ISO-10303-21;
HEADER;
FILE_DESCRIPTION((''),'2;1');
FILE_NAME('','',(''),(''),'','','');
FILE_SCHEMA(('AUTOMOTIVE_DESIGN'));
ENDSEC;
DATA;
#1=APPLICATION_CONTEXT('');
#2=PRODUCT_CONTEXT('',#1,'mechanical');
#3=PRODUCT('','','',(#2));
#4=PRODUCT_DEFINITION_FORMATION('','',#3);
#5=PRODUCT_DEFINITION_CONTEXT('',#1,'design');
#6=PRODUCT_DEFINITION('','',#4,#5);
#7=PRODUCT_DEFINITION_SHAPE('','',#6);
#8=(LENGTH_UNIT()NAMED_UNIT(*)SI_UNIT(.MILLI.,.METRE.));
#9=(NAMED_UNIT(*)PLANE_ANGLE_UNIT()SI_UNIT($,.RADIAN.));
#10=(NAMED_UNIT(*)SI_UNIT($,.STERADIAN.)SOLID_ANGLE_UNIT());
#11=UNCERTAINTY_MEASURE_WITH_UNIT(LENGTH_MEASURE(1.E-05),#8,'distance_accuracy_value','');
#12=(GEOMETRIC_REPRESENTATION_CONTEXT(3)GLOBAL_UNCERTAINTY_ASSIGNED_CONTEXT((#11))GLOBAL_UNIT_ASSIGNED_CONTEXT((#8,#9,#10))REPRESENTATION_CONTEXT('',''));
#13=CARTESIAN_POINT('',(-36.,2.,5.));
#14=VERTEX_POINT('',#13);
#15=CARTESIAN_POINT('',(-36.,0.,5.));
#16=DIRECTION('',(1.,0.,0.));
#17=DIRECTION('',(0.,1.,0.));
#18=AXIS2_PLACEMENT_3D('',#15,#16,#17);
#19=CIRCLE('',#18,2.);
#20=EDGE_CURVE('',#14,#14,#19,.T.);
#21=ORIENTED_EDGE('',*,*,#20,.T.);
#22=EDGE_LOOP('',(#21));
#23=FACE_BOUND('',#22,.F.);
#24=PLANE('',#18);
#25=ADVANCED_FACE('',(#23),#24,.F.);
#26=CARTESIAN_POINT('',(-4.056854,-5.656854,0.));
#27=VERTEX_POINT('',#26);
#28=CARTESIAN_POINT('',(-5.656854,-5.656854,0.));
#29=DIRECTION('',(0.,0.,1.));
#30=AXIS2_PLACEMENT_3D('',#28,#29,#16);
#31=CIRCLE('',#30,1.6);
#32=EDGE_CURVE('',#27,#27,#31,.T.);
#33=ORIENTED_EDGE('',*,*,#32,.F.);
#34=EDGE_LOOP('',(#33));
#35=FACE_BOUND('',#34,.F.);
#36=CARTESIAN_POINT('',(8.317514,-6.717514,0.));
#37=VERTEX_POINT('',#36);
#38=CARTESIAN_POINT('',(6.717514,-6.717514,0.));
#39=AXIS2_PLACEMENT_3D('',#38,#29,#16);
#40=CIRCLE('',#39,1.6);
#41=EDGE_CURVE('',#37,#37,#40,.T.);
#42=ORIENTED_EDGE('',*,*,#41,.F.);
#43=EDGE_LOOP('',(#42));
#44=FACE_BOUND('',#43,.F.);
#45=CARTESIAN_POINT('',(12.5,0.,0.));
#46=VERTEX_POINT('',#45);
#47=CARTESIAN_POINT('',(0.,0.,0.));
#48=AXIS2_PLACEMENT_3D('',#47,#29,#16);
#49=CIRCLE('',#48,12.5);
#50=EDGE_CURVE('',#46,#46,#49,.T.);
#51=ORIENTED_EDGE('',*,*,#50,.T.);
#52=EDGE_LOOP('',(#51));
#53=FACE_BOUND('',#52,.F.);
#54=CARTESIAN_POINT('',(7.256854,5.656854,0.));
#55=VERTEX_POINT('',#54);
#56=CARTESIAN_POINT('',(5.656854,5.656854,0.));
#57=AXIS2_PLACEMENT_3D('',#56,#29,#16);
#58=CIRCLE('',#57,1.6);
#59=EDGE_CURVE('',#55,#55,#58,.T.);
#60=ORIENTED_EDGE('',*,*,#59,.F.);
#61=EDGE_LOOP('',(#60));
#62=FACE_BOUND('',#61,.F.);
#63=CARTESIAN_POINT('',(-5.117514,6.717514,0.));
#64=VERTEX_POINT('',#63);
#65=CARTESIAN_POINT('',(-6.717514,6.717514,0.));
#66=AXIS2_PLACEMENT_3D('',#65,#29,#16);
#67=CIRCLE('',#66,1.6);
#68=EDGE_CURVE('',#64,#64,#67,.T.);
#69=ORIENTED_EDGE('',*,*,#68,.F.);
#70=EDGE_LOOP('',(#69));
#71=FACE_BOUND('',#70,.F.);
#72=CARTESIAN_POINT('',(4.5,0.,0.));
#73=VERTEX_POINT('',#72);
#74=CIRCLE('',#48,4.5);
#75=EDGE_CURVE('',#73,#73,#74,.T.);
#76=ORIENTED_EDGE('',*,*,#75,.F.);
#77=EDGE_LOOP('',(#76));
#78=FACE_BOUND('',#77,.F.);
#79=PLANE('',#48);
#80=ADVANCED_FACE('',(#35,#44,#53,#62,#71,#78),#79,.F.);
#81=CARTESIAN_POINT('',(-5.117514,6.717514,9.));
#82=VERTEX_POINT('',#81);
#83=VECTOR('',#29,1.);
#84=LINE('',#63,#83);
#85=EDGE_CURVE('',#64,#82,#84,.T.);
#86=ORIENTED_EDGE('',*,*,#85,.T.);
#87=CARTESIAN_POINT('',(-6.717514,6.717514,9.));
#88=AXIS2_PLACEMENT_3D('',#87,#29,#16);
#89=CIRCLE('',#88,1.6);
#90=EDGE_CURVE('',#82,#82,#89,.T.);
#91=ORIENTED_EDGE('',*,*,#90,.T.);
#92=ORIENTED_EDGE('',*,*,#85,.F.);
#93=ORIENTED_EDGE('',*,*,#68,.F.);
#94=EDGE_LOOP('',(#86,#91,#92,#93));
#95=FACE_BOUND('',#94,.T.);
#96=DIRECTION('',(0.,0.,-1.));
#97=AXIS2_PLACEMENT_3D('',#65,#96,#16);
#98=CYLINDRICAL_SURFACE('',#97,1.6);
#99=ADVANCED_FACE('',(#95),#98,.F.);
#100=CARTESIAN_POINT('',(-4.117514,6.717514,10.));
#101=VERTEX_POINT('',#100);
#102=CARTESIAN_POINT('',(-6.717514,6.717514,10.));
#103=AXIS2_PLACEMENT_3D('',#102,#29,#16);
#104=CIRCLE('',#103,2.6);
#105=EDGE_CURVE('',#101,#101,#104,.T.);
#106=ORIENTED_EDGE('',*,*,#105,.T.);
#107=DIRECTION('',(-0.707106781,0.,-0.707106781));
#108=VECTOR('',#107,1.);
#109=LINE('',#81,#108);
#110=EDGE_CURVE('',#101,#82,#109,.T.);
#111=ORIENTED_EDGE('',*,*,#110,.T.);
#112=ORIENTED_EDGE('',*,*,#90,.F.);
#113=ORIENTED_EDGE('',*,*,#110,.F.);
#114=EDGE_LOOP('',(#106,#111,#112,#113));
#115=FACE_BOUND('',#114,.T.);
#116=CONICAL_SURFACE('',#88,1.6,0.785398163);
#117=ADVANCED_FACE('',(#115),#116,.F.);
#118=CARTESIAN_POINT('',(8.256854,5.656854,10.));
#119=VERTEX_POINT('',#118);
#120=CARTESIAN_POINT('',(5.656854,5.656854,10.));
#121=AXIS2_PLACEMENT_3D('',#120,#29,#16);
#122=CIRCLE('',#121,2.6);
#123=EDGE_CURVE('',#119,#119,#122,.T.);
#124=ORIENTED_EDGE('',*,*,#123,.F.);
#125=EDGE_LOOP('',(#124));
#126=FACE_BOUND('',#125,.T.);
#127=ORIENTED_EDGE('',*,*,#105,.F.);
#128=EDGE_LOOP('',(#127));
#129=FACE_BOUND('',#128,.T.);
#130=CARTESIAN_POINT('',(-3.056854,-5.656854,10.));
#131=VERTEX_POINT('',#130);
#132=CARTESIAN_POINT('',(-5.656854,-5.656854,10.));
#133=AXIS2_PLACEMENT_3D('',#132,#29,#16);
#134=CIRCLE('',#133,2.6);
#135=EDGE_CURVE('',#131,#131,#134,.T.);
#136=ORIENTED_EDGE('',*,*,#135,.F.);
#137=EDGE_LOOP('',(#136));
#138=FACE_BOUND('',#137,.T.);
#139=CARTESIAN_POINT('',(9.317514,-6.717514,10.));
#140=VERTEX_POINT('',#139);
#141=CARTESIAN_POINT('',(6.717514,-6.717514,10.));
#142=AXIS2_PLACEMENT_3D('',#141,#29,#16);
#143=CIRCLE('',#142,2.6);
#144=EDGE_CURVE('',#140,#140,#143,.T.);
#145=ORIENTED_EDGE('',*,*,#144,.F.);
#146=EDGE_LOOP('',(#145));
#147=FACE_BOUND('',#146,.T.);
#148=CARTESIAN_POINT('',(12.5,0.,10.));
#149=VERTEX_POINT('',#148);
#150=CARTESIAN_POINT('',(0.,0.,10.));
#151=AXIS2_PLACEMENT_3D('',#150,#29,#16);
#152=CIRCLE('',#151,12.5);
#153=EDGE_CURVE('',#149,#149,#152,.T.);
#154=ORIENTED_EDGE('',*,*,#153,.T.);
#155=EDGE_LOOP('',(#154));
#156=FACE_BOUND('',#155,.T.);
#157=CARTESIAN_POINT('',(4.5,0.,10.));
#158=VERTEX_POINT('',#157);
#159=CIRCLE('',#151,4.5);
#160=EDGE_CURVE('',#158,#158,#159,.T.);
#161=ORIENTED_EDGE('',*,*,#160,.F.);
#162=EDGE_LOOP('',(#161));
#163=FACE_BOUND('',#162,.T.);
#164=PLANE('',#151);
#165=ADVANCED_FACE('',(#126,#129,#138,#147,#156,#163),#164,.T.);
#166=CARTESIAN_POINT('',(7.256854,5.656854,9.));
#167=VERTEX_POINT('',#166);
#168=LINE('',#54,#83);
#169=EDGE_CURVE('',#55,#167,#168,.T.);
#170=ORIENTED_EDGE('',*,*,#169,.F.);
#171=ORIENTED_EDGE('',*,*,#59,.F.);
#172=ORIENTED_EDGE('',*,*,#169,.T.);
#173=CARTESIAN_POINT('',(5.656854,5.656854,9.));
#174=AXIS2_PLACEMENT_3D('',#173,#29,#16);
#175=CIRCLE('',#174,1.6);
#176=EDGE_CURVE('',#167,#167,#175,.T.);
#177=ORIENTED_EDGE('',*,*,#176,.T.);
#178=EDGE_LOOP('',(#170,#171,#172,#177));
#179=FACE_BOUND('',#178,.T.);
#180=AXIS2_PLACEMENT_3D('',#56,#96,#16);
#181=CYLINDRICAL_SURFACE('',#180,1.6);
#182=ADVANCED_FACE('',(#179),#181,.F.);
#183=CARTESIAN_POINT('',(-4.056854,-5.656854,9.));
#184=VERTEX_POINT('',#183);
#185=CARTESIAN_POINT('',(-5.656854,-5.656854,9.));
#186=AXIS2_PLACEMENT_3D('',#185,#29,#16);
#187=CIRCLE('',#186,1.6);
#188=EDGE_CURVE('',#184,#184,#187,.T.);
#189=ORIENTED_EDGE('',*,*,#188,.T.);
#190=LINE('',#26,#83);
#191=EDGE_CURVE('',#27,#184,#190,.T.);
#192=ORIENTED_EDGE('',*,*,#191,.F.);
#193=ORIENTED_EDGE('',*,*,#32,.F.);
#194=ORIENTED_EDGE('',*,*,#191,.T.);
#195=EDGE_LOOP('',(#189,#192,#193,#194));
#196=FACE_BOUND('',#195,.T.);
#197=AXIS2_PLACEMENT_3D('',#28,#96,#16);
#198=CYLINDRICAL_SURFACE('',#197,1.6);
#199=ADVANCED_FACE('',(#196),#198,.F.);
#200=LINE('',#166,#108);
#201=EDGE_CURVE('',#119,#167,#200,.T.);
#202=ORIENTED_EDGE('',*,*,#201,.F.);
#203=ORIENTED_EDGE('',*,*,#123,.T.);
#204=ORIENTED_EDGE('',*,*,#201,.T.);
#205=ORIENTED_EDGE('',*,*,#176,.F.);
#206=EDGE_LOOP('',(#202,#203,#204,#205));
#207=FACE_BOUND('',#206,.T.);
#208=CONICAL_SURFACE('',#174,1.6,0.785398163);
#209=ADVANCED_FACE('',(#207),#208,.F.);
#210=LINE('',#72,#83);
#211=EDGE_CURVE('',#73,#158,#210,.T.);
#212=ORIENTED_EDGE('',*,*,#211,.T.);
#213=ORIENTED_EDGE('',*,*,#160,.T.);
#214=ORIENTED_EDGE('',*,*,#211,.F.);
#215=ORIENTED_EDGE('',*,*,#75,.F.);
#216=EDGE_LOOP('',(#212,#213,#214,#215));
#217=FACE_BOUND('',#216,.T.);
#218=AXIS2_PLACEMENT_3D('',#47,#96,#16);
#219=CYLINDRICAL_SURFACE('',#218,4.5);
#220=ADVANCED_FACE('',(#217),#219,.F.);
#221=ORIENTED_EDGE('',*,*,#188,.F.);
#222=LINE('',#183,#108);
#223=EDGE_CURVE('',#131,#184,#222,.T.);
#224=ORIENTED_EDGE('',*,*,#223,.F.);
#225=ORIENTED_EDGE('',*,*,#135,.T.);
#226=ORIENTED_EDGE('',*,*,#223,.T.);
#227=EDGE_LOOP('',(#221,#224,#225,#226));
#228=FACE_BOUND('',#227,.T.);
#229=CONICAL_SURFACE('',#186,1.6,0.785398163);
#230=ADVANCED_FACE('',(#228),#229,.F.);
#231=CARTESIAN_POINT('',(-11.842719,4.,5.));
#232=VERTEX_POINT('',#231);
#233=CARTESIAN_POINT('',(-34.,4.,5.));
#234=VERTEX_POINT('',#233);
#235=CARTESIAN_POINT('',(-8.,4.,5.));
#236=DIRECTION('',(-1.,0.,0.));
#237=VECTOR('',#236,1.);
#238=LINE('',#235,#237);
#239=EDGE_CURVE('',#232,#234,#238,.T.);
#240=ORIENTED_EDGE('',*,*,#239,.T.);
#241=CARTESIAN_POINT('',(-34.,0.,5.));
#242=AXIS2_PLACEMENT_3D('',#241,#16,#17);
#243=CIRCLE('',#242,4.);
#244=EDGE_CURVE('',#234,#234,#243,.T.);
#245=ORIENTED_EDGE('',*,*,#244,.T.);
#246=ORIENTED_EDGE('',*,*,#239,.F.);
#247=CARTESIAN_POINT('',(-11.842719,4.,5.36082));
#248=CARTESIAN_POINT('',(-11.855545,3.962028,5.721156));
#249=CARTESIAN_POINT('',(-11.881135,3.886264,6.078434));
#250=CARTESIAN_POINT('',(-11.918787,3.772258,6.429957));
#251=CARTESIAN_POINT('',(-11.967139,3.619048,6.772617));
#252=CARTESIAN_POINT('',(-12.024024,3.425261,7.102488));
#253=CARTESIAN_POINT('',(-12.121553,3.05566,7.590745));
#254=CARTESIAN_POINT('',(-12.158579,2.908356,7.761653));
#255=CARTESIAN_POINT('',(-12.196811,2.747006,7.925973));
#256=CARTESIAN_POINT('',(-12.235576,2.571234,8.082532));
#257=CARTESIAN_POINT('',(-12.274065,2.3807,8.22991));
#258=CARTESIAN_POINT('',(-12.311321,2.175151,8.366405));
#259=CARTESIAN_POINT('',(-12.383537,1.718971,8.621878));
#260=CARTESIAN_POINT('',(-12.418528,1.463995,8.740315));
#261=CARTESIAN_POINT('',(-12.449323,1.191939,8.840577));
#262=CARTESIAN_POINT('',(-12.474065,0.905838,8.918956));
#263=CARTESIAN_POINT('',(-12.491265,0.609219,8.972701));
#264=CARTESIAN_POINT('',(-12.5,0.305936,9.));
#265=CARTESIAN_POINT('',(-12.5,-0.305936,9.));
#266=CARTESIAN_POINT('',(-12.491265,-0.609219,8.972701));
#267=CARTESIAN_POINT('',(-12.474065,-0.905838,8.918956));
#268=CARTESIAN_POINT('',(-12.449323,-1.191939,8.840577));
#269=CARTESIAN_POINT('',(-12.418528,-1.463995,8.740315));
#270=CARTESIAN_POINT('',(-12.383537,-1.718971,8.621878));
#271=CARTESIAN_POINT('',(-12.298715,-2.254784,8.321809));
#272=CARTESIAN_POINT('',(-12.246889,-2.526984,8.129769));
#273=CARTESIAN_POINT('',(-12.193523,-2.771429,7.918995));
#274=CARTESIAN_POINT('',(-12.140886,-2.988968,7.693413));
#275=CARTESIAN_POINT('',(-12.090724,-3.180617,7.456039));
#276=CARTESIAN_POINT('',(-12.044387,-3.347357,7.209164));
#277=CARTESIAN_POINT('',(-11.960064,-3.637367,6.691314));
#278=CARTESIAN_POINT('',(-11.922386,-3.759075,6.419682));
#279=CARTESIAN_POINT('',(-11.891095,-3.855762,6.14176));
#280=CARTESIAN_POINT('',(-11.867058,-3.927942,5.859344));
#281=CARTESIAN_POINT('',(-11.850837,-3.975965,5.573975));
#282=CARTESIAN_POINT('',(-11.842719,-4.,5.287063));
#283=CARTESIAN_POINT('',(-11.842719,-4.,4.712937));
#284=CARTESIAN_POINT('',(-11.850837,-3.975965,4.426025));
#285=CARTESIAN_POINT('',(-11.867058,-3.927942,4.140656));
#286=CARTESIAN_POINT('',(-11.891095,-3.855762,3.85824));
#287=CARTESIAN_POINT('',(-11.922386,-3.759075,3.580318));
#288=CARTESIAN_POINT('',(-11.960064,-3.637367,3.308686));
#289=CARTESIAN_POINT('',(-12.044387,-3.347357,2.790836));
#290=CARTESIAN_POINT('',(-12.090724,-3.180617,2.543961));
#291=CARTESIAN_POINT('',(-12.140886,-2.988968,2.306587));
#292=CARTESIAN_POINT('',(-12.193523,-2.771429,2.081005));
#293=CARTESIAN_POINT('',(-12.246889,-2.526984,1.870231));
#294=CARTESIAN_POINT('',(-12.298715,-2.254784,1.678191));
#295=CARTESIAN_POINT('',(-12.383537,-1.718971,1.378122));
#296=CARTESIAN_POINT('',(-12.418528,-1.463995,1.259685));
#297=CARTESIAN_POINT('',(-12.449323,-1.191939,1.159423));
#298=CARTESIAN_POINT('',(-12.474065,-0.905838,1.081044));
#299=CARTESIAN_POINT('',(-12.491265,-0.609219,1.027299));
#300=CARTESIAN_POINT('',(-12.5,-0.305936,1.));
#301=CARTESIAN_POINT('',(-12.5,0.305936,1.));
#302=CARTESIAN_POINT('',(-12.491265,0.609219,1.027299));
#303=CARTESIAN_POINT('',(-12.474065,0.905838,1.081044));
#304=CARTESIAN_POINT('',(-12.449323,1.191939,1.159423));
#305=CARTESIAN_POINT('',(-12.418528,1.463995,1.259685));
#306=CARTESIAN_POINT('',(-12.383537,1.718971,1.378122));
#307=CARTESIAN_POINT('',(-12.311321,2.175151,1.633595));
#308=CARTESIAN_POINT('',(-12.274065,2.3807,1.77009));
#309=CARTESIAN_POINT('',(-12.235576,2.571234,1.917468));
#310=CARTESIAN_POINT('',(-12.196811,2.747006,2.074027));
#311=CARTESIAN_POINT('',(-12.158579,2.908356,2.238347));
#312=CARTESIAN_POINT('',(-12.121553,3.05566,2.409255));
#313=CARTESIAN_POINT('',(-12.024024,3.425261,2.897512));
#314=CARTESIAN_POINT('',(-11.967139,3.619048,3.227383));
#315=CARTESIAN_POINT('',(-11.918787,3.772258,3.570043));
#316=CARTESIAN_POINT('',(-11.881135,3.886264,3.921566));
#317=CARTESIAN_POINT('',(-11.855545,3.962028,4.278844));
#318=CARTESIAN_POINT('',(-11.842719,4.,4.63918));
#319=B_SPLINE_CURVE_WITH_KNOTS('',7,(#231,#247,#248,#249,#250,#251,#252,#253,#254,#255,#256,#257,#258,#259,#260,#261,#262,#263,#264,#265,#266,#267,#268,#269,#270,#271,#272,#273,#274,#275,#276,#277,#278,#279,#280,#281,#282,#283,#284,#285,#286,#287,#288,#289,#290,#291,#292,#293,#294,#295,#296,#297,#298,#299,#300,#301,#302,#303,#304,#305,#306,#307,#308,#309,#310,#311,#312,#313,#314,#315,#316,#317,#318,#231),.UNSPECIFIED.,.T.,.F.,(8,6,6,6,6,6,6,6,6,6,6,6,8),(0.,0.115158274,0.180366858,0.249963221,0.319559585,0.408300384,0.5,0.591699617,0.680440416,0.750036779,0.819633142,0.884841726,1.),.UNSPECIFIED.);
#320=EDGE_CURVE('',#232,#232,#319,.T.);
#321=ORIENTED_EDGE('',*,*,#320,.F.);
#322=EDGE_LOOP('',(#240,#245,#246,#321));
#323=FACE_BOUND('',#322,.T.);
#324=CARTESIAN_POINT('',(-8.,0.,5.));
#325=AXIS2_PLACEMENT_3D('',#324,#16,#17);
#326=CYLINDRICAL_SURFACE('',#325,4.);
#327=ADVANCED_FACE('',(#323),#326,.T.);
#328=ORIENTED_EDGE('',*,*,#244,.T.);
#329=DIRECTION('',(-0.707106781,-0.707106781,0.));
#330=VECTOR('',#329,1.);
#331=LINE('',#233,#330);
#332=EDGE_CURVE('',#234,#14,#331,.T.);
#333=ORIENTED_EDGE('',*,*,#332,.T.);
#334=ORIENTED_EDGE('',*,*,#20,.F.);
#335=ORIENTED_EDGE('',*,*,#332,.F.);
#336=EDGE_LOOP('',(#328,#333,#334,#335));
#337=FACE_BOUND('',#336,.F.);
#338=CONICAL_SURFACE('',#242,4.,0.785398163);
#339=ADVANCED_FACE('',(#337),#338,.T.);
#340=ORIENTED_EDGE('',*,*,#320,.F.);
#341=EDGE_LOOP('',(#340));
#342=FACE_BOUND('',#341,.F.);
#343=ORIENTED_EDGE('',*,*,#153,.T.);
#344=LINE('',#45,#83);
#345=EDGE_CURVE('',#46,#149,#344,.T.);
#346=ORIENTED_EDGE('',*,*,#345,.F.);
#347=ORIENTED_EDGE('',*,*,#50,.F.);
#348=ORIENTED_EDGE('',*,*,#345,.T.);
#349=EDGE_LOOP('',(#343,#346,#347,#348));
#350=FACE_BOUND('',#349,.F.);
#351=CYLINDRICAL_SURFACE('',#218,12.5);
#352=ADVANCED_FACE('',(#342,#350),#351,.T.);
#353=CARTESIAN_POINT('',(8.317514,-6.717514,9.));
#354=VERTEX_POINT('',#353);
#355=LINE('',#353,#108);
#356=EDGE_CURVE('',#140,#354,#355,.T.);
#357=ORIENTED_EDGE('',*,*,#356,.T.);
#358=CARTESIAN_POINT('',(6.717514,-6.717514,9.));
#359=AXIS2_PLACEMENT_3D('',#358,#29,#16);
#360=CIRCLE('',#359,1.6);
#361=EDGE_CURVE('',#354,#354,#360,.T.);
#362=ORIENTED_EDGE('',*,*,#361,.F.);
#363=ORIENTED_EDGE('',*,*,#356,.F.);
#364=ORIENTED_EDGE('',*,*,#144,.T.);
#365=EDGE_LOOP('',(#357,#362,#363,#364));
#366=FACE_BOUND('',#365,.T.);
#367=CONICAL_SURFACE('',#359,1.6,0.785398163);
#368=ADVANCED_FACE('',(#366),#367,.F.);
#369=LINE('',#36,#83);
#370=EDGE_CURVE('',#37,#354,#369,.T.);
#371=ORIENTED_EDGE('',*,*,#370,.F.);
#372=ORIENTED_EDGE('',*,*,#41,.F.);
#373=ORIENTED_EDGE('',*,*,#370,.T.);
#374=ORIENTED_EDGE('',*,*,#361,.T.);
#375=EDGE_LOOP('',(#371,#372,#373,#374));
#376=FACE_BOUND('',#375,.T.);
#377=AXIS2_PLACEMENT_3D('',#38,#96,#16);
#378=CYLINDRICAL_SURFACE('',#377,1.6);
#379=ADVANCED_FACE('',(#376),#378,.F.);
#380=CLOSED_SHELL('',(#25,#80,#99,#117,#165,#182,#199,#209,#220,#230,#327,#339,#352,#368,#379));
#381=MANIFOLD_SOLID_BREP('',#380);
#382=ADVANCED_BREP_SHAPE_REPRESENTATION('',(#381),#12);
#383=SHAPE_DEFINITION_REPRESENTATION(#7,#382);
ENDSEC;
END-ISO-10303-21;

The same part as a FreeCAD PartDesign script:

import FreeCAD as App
import Part
import Sketcher
from FreeCAD import Vector


def edges_at(feature, points):
    """Names of the edges that pass closest to the given points."""
    edges = feature.Shape.Edges
    near = lambda p: min(range(len(edges)), key=lambda i: edges[i].distToShape(Part.Vertex(*p))[0])
    return sorted({f"Edge{near(p) + 1}" for p in points})

doc = App.newDocument("Part")
body = doc.addObject("PartDesign::Body", "Body")

# Sketch on XY plane
sketch1 = body.newObject("Sketcher::SketchObject", "Sketch")
sketch1.AttachmentSupport = (doc.getObject("XY_Plane"), [""])
sketch1.MapMode = "FlatFace"
sketch1.addGeometry([
    Part.Circle(Vector(0, 0, 0), Vector(0, 0, 1), 12.5),  # 0
    Part.Circle(Vector(-5.656854, -5.656854, 0), Vector(0, 0, 1), 1.6),  # 1
    Part.Circle(Vector(6.717514, -6.717514, 0), Vector(0, 0, 1), 1.6),  # 2
    Part.Circle(Vector(-6.717514, 6.717514, 0), Vector(0, 0, 1), 1.6),  # 3
    Part.Circle(Vector(0, 0, 0), Vector(0, 0, 1), 4.5),  # 4
    Part.Circle(Vector(5.656854, 5.656854, 0), Vector(0, 0, 1), 1.6),  # 5
], False)
sketch1.addConstraint([
    Sketcher.Constraint("Coincident", 0, 3, -1, 1),
    Sketcher.Constraint("Coincident", 4, 3, -1, 1),
    Sketcher.Constraint("Equal", 1, 2),
    Sketcher.Constraint("Equal", 2, 3),
    Sketcher.Constraint("Equal", 3, 5),
    Sketcher.Constraint("Symmetric", 2, 3, 3, 3, -1, 1),
    Sketcher.Constraint("Symmetric", 1, 3, 5, 3, -1, 1),
    Sketcher.Constraint("Diameter", 0, 25.0),
    Sketcher.Constraint("Diameter", 4, 9.0),
    Sketcher.Constraint("Diameter", 1, 3.2),
    Sketcher.Constraint("DistanceY", 2, 3, 1, 3, 1.06066),
    Sketcher.Constraint("DistanceX", 3, 3, 1, 3, 1.06066),
    Sketcher.Constraint("DistanceX", 3, 3, 2, 3, 13.435028),
    Sketcher.Constraint("DistanceY", 2, 3, 3, 3, 13.435028),
])
pad1 = body.newObject("PartDesign::Pad", "Pad")
pad1.Profile = sketch1
pad1.Length = 10

# Sketch on YZ plane
sketch2 = body.newObject("Sketcher::SketchObject", "Sketch001")
sketch2.AttachmentSupport = (doc.getObject("YZ_Plane"), [""])
sketch2.MapMode = "FlatFace"
sketch2.AttachmentOffset = App.Placement(Vector(0, 0, -8), App.Rotation())
sketch2.addGeometry(Part.Circle(Vector(0, 5, 0), Vector(0, 0, 1), 4), False)
sketch2.addConstraint([
    Sketcher.Constraint("PointOnObject", 0, 3, -2),
    Sketcher.Constraint("Diameter", 0, 8.0),
    Sketcher.Constraint("DistanceY", -1, 1, 0, 3, 5.0),
])
pad2 = body.newObject("PartDesign::Pad", "Pad001")
pad2.Profile = sketch2
pad2.Length = 28
pad2.Reversed = True
doc.recompute()

chamfer = body.newObject("PartDesign::Chamfer", "Chamfer")
chamfer.Base = (pad2, edges_at(pad2, [(-36, -4, 5)]))
chamfer.Size = 2
doc.recompute()

chamfer2 = body.newObject("PartDesign::Chamfer", "Chamfer001")
chamfer2.Base = (chamfer, edges_at(chamfer, [
    (4.057, 5.657, 10),
    (5.118, -6.718, 10),
    (-7.257, -5.657, 10),
    (-8.318, 6.718, 10),
]))
chamfer2.Size = 1

doc.recompute()
